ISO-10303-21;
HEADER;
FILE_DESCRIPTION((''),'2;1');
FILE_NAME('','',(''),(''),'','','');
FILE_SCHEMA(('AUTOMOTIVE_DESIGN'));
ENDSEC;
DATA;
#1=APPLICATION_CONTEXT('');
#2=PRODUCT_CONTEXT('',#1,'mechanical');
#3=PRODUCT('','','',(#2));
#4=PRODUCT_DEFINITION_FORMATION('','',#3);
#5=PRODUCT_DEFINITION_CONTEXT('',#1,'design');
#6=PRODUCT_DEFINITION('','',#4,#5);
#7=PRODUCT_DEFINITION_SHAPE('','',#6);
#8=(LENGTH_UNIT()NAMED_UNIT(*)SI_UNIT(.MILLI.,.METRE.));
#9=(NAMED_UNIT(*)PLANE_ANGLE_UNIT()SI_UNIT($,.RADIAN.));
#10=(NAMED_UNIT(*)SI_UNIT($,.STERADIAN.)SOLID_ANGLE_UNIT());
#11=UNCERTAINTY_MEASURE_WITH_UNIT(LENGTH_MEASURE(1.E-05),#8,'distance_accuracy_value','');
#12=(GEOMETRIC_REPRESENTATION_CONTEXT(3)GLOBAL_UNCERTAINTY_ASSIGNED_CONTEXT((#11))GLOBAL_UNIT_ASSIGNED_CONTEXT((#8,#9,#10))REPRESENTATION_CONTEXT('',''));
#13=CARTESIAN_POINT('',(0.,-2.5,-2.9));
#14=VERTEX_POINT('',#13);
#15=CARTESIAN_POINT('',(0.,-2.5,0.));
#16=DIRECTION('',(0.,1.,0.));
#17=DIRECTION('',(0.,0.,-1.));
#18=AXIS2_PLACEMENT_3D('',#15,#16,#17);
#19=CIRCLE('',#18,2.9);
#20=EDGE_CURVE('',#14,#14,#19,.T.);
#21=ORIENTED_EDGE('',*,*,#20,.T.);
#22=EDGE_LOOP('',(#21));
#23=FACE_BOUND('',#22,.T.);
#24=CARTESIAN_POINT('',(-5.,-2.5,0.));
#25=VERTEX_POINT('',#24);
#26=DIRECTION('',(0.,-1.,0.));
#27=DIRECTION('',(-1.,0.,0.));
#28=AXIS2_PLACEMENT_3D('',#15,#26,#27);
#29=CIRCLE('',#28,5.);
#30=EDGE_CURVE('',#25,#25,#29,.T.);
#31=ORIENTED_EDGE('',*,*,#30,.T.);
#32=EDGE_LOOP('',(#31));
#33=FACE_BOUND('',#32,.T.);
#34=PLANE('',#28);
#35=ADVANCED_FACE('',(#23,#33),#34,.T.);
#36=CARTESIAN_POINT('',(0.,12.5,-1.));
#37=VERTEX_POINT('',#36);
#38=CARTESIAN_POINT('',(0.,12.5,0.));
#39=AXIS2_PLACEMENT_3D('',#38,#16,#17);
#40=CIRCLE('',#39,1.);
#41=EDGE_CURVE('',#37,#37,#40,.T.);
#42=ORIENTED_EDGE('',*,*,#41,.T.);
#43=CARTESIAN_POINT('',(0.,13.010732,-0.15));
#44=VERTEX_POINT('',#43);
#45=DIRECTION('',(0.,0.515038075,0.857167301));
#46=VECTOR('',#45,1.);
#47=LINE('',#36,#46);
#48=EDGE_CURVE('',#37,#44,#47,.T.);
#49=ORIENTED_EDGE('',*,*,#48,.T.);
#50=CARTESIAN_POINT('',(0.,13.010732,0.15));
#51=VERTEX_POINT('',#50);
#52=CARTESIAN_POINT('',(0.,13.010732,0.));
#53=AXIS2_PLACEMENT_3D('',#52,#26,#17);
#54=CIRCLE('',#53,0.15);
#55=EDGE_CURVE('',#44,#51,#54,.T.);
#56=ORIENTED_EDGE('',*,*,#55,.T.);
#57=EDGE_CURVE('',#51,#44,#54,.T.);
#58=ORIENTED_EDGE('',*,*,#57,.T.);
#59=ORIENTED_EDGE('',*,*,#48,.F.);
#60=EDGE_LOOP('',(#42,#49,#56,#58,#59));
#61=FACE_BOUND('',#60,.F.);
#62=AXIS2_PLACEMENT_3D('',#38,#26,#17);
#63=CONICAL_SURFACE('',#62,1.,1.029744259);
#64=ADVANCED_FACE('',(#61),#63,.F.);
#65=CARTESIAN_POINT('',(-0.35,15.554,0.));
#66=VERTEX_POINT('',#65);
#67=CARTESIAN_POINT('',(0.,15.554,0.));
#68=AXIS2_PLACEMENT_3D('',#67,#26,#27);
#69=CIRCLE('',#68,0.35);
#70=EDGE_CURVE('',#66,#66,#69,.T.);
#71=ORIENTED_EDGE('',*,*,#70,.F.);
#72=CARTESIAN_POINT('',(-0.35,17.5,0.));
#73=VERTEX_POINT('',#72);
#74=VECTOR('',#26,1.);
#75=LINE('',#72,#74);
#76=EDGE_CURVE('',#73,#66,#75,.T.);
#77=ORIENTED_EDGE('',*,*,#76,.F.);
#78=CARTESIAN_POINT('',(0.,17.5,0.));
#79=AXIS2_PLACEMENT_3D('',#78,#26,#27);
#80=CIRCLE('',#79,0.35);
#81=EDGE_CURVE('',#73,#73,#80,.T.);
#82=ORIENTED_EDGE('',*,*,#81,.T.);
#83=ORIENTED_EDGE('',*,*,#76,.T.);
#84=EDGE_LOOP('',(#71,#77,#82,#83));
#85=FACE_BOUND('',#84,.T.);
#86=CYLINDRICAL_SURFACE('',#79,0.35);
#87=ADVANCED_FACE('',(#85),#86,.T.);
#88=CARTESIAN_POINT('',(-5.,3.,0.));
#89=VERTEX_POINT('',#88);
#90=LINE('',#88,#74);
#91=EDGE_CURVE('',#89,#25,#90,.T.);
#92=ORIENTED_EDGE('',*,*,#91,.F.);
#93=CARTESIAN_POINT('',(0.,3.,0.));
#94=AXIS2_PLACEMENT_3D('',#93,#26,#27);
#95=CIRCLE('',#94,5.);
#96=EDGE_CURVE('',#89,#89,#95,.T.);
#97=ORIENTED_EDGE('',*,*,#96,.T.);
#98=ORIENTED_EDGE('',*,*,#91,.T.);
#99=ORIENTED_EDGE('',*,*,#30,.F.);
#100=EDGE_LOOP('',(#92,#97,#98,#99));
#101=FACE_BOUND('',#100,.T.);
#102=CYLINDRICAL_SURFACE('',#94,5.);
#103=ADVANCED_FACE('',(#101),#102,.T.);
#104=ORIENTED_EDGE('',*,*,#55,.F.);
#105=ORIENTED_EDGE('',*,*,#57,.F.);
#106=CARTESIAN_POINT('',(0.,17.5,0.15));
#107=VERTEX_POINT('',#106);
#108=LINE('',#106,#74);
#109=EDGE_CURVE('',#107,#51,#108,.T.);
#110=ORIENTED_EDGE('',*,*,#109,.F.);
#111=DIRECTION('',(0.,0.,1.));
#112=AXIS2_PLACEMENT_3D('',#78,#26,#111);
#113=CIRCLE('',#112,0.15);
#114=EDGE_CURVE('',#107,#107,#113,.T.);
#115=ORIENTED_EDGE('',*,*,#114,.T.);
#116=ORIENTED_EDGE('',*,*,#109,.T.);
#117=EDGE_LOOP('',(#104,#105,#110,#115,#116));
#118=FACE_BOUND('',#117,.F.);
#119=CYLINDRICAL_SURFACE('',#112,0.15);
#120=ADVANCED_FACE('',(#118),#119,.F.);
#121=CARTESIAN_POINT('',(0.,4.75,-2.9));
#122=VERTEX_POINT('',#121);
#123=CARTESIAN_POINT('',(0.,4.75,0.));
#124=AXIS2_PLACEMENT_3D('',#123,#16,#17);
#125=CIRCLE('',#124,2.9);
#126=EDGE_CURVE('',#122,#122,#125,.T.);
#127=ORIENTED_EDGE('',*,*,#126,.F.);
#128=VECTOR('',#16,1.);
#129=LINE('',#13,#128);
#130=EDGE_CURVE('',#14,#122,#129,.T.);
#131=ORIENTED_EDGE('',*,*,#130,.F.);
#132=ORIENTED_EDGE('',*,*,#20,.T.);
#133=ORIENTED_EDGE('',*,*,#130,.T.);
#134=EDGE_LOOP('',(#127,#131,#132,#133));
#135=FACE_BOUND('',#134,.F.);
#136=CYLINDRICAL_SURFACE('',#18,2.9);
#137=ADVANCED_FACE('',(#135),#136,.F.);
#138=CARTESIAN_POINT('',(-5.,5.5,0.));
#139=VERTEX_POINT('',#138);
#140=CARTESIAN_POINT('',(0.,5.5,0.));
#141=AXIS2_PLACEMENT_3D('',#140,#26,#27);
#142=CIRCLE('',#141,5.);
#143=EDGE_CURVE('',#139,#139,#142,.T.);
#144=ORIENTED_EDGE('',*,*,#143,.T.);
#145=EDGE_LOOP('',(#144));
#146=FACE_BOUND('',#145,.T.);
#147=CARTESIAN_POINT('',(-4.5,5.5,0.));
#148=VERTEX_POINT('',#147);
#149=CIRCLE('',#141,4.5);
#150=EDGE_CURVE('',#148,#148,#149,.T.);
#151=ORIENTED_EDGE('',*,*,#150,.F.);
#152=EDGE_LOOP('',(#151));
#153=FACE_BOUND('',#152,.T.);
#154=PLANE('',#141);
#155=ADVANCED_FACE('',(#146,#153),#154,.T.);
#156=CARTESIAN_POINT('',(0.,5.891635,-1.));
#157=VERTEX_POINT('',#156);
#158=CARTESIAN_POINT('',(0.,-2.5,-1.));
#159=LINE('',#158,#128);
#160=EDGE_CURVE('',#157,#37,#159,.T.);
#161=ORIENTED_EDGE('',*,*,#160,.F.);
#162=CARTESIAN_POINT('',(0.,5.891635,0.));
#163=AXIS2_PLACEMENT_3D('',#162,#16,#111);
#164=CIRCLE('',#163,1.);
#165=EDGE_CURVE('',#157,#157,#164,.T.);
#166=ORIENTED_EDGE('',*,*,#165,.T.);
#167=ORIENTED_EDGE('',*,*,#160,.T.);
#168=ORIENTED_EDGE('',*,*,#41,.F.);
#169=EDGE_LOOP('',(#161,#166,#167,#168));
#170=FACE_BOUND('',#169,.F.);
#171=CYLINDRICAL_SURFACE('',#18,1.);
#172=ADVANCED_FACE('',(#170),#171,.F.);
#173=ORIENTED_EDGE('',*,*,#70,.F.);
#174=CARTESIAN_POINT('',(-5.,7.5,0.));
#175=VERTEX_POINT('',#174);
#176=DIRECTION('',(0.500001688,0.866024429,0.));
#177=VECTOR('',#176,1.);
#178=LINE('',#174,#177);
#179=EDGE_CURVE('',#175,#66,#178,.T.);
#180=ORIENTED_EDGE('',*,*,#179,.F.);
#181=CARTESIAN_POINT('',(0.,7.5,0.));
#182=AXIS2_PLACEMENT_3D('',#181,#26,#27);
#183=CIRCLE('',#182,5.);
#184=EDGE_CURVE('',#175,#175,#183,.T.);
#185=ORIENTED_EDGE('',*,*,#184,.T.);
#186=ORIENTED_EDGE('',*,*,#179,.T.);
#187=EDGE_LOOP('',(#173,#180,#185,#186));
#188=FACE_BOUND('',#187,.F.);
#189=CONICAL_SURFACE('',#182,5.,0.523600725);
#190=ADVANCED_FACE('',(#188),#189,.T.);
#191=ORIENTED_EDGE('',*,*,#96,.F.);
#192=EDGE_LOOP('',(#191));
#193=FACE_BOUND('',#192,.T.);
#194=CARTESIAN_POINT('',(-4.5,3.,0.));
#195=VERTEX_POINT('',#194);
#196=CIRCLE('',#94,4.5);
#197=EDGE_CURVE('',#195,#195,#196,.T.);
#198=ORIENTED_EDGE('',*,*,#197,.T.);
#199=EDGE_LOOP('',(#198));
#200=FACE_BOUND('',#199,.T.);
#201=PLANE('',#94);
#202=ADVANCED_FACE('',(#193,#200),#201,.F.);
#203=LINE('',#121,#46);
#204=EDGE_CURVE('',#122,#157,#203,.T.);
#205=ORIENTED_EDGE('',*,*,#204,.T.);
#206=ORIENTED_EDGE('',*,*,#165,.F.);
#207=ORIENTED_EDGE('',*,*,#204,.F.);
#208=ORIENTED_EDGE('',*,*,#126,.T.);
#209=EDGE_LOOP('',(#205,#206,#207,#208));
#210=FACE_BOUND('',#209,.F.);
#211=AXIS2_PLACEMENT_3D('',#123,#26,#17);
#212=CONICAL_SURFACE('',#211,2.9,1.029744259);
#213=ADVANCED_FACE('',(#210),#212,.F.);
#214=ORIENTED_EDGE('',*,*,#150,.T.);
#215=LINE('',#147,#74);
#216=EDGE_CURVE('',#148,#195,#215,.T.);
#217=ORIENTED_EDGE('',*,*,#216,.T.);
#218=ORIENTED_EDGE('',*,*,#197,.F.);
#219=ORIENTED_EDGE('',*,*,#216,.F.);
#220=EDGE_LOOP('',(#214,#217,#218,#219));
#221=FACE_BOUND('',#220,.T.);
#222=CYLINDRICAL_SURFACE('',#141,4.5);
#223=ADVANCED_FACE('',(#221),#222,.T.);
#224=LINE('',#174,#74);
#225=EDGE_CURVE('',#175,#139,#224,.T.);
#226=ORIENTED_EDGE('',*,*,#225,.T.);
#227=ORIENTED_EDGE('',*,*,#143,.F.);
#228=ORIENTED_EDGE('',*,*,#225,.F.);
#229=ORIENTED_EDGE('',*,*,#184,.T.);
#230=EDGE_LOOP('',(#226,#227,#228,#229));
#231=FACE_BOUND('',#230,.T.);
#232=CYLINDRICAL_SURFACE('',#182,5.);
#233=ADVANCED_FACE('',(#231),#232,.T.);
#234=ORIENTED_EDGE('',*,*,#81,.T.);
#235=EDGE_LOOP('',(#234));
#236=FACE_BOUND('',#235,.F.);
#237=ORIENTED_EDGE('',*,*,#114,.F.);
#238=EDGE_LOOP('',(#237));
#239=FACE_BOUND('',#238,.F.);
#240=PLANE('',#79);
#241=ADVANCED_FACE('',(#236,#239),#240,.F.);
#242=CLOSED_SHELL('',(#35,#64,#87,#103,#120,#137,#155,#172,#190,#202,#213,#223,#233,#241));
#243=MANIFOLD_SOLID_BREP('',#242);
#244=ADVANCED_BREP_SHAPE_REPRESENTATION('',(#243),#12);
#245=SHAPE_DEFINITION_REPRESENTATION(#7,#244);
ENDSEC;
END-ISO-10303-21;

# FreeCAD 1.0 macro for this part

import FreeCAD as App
import Part
import Sketcher

V = App.Vector
Q = App.Units.Quantity

doc = App.newDocument("Part")
body = doc.addObject("PartDesign::Body", "Body")

# Sketch on XY plane
sketch1 = body.newObject("Sketcher::SketchObject", "Sketch")
sketch1.AttachmentSupport = (doc.getObject("XY_Plane"), [""])
sketch1.MapMode = "FlatFace"
sketch1.addGeometry([
    Part.LineSegment(V(0, -2.5, 0), V(0, 17.5, 0)),  # 0
    Part.LineSegment(V(0, 17.5, 0), V(-0.35, 17.5, 0)),  # 1
    Part.LineSegment(V(-0.35, 17.5, 0), V(-0.35, 15.55, 0)),  # 2
    Part.LineSegment(V(-0.35, 15.55, 0), V(-5, 7.5, 0)),  # 3
    Part.LineSegment(V(-5, 7.5, 0), V(-5, 5.5, 0)),  # 4
    Part.LineSegment(V(-5, 5.5, 0), V(-4.5, 5.5, 0)),  # 5
    Part.LineSegment(V(-4.5, 5.5, 0), V(-4.5, 3, 0)),  # 6
    Part.LineSegment(V(-4.5, 3, 0), V(-5, 3, 0)),  # 7
    Part.LineSegment(V(-5, 3, 0), V(-5, -2.5, 0)),  # 8
    Part.LineSegment(V(-5, -2.5, 0), V(0, -2.5, 0)),  # 9
], False)
sketch1.addConstraint([
    Sketcher.Constraint("Coincident", 0, 2, 1, 1),
    Sketcher.Constraint("Coincident", 1, 2, 2, 1),
    Sketcher.Constraint("Coincident", 2, 2, 3, 1),
    Sketcher.Constraint("Coincident", 3, 2, 4, 1),
    Sketcher.Constraint("Coincident", 4, 2, 5, 1),
    Sketcher.Constraint("Coincident", 5, 2, 6, 1),
    Sketcher.Constraint("Coincident", 6, 2, 7, 1),
    Sketcher.Constraint("Coincident", 7, 2, 8, 1),
    Sketcher.Constraint("Coincident", 8, 2, 9, 1),
    Sketcher.Constraint("Coincident", 9, 2, 0, 1),
    Sketcher.Constraint("Vertical", 0),
    Sketcher.Constraint("Horizontal", 1),
    Sketcher.Constraint("Vertical", 2),
    Sketcher.Constraint("Vertical", 4),
    Sketcher.Constraint("Horizontal", 5),
    Sketcher.Constraint("Vertical", 6),
    Sketcher.Constraint("Horizontal", 7),
    Sketcher.Constraint("Vertical", 8),
    Sketcher.Constraint("Horizontal", 9),
    Sketcher.Constraint("PointOnObject", 0, 2, -2),
    Sketcher.Constraint("Vertical", 4, 2, 7, 2),
    Sketcher.Constraint("DistanceX", 9, 1, 9, 2, Q("5 mm")),
    Sketcher.Constraint("DistanceY", 0, 1, 0, 2, Q("20 mm")),
    Sketcher.Constraint("DistanceY", 4, 2, 4, 1, Q("2 mm")),
    Sketcher.Constraint("DistanceX", 5, 1, 5, 2, Q("0.5 mm")),
    Sketcher.Constraint("DistanceY", 6, 2, 6, 1, Q("2.5 mm")),
    Sketcher.Constraint("DistanceY", 3, 2, 1, 2, Q("10 mm")),
    Sketcher.Constraint("DistanceX", 1, 2, 1, 1, Q("0.35 mm")),
    Sketcher.Constraint("DistanceY", 8, 2, -1, 1, Q("2.5 mm")),
    Sketcher.Constraint("DistanceY", 2, 2, 2, 1, Q("1.946 mm")),
])
revolution = body.newObject("PartDesign::Revolution", "Revolution")
revolution.Profile = sketch1
revolution.ReferenceAxis = (sketch1, ["V_Axis"])
revolution.Angle = 360

# Sketch on XZ plane
sketch2 = body.newObject("Sketcher::SketchObject", "Sketch001")
sketch2.AttachmentSupport = (doc.getObject("XZ_Plane"), [""])
sketch2.MapMode = "FlatFace"
sketch2.AttachmentOffset = App.Placement(V(0, 0, 2.5), App.Rotation())
sketch2.addGeometry(Part.Circle(V(0, 0, 0), V(0, 0, 1), 2.9), False)
sketch2.addConstraint([
    Sketcher.Constraint("Coincident", 0, 3, -1, 1),
    Sketcher.Constraint("Diameter", 0, Q("5.8 mm")),
])
doc.recompute()
hole = body.newObject("PartDesign::Hole", "Hole")
hole.Profile = sketch2
hole.ThreadType = "None"
hole.Diameter = 5.8
hole.DepthType = "Dimension"
hole.Depth = 7.25
hole.DrillPoint = "Angled"
hole.DrillPointAngle = 118

# Sketch on XZ plane
sketch3 = body.newObject("Sketcher::SketchObject", "Sketch002")
sketch3.AttachmentSupport = (doc.getObject("XZ_Plane"), [""])
sketch3.MapMode = "FlatFace"
sketch3.AttachmentOffset = App.Placement(V(0, 0, 2.5), App.Rotation())
sketch3.addGeometry(Part.Circle(V(0, 0, 0), V(0, 0, 1), 1), False)
sketch3.addConstraint([
    Sketcher.Constraint("Coincident", 0, 3, -1, 1),
    Sketcher.Constraint("Diameter", 0, Q("2 mm")),
])
doc.recompute()
hole2 = body.newObject("PartDesign::Hole", "Hole001")
hole2.Profile = sketch3
hole2.ThreadType = "None"
hole2.Diameter = 2
hole2.DepthType = "Dimension"
hole2.Depth = 15
hole2.DrillPoint = "Angled"
hole2.DrillPointAngle = 118

# Sketch on XZ plane
sketch4 = body.newObject("Sketcher::SketchObject", "Sketch003")
sketch4.AttachmentSupport = (doc.getObject("XZ_Plane"), [""])
sketch4.MapMode = "FlatFace"
sketch4.AttachmentOffset = App.Placement(V(0, 0, -17.5), App.Rotation())
sketch4.addGeometry(Part.Circle(V(0, 0, 0), V(0, 0, 1), 0.15), False)
sketch4.addConstraint([
    Sketcher.Constraint("Coincident", 0, 3, -1, 1),
    Sketcher.Constraint("Diameter", 0, Q("0.3 mm")),
])
doc.recompute()
hole3 = body.newObject("PartDesign::Hole", "Hole002")
hole3.Profile = sketch4
hole3.ThreadType = "None"
hole3.Diameter = 0.3
hole3.DepthType = "ThroughAll"
hole3.Reversed = True

doc.recompute()
